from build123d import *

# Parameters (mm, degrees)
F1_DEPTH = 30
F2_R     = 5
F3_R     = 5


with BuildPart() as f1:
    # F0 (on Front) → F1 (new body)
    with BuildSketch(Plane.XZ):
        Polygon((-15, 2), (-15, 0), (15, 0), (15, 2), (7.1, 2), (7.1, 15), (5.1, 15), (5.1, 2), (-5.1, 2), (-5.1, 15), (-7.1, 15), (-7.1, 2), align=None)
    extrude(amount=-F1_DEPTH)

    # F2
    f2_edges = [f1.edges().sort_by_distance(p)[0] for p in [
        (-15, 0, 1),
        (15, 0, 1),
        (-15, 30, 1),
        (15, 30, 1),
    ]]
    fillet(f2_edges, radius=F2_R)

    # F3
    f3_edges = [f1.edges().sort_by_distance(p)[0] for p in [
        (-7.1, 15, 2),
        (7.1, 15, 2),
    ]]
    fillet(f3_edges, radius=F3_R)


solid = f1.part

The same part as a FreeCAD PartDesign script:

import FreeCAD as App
import Part
import Sketcher
Q = App.Units.Quantity


def edges_at(feature, points):
    """Names of the edges that pass closest to the given points."""
    edges = feature.Shape.Edges
    near = lambda p: min(range(len(edges)), key=lambda i: edges[i].distToShape(Part.Vertex(*p))[0])
    return sorted({f"Edge{near(p) + 1}" for p in points})


def add_polygon(sketch, points):
    """Adds a closed chain of lines whose ends are joined by coincident constraints."""
    first, n = sketch.GeometryCount, len(points)
    for a, b in zip(points, points[1:] + points[:1]):
        sketch.addGeometry(Part.LineSegment(App.Vector(*a, 0), App.Vector(*b, 0)), False)
    for i in range(n):
        sketch.addConstraint(Sketcher.Constraint("Coincident", first + i, 2, first + (i + 1) % n, 1))

doc = App.newDocument("Part")
body = doc.addObject("PartDesign::Body", "Body")

# Sketch on XZ plane
sketch1 = doc.addObject("Sketcher::SketchObject", "Sketch")
body.addObject(sketch1)
sketch1.AttachmentSupport = (doc.XZ_Plane, [""])
sketch1.MapMode = "FlatFace"
add_polygon(sketch1, [(-15, 2), (-15, 0), (15, 0), (15, 2), (7.1, 2), (7.1, 15), (5.1, 15), (5.1, 2), (-5.1, 2), (-5.1, 15), (-7.1, 15), (-7.1, 2)])  # lines 0-11
sketch1.addConstraint([
    Sketcher.Constraint("Vertical", 0),
    Sketcher.Constraint("Horizontal", 1),
    Sketcher.Constraint("Vertical", 2),
    Sketcher.Constraint("Horizontal", 3),
    Sketcher.Constraint("Vertical", 4),
    Sketcher.Constraint("Horizontal", 5),
    Sketcher.Constraint("Vertical", 6),
    Sketcher.Constraint("Horizontal", 7),
    Sketcher.Constraint("Vertical", 8),
    Sketcher.Constraint("Horizontal", 9),
    Sketcher.Constraint("Vertical", 10),
    Sketcher.Constraint("Horizontal", 11),
    Sketcher.Constraint("Symmetric", 0, 2, 1, 2, -1, 1),
    Sketcher.Constraint("Symmetric", 5, 2, 8, 2, -2),
    Sketcher.Constraint("Symmetric", 3, 2, 10, 2, -2),
    Sketcher.Constraint("Horizontal", 3, 2, 6, 2),
    Sketcher.Constraint("Equal", 9, 0),
    Sketcher.Constraint("DistanceX", 1, 1, 1, 2, Q("30 mm")),
    Sketcher.Constraint("DistanceX", 5, 2, 5, 1, Q("2 mm")),
    Sketcher.Constraint("DistanceY", 4, 1, 4, 2, Q("13 mm")),
    Sketcher.Constraint("DistanceX", 3, 2, 3, 1, Q("7.9 mm")),
])
pad1 = doc.addObject("PartDesign::Pad", "Pad")
body.addObject(pad1)
pad1.Profile = sketch1
pad1.Length = 30
pad1.Reversed = True
doc.recompute()

fillet = doc.addObject("PartDesign::Fillet", "Fillet")
body.addObject(fillet)
fillet.Base = (pad1, edges_at(pad1, [
    (-15, 0, 1),
    (15, 0, 1),
    (-15, 30, 1),
    (15, 30, 1),
]))
fillet.Radius = 5
doc.recompute()

fillet2 = doc.addObject("PartDesign::Fillet", "Fillet001")
body.addObject(fillet2)
fillet2.Base = (fillet, edges_at(fillet, [(-7.1, 15, 2), (7.1, 15, 2)]))
fillet2.Radius = 5

doc.recompute()
